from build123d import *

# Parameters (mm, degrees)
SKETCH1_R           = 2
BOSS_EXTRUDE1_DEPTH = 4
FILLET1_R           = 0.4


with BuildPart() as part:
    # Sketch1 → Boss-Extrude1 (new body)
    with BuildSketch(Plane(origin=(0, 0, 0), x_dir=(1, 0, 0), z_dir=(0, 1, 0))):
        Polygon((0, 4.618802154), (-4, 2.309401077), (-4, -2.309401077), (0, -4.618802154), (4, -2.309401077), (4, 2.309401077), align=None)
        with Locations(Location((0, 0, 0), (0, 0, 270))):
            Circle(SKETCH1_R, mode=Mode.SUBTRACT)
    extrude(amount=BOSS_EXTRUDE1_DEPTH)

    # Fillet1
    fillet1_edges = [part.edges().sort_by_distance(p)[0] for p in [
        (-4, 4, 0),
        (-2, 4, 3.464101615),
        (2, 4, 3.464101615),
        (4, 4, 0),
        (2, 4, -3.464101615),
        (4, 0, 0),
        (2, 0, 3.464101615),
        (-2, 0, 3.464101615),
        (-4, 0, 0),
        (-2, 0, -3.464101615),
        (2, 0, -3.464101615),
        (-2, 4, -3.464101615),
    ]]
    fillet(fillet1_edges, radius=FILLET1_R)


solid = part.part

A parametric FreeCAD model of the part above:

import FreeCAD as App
import Part
import Sketcher
from FreeCAD import Vector
Q = App.Units.Quantity


def edges_at(feature, points):
    """Names of the edges that pass closest to the given points."""
    edges = feature.Shape.Edges
    near = lambda p: min(range(len(edges)), key=lambda i: edges[i].distToShape(Part.Vertex(*p))[0])
    return sorted({f"Edge{near(p) + 1}" for p in points})


def add_polygon(sketch, points):
    """Adds a closed chain of lines whose ends are joined by coincident constraints."""
    first, n = sketch.GeometryCount, len(points)
    for a, b in zip(points, points[1:] + points[:1]):
        sketch.addGeometry(Part.LineSegment(App.Vector(*a, 0), App.Vector(*b, 0)), False)
    for i in range(n):
        sketch.addConstraint(Sketcher.Constraint("Coincident", first + i, 2, first + (i + 1) % n, 1))

doc = App.newDocument("Part")
params = doc.addObject("Spreadsheet::Sheet", "Params")
for row, (alias, value) in enumerate([
    ("sketch1_diameter", "4 mm"),
    ("pad1_length", "4 mm"),
    ("fillet_radius", "0.4 mm"),
], start=1):
    params.set(f"A{row}", alias)
    params.set(f"B{row}", "=" + value)
    params.setAlias(f"B{row}", alias)

body = doc.addObject("PartDesign::Body", "Body")

# Sketch on XZ plane
sketch1 = doc.addObject("Sketcher::SketchObject", "Sketch")
body.addObject(sketch1)
sketch1.AttachmentSupport = (doc.XZ_Plane, [""])
sketch1.MapMode = "FlatFace"
add_polygon(sketch1, [(0, -4.618802), (-4, -2.309401), (-4, 2.309401), (0, 4.618802), (4, 2.309401), (4, -2.309401)])  # lines 0-5
sketch1.addGeometry(Part.Circle(Vector(0, 0, 0), Vector(0, 0, 1), 2), False)  # 6
sketch1.addConstraint([
    Sketcher.Constraint("Vertical", 1),
    Sketcher.Constraint("Vertical", 4),
    Sketcher.Constraint("Coincident", 6, 3, -1, 1),
    Sketcher.Constraint("Symmetric", 0, 2, 3, 2, -1, 1),
    Sketcher.Constraint("Symmetric", 2, 2, 5, 2, -1, 1),
    Sketcher.Constraint("PointOnObject", 2, 2, -2),
    Sketcher.Constraint("Parallel", 2, 5),
    Sketcher.Constraint("Horizontal", 1, 2, 3, 2),
    Sketcher.Constraint("Diameter", 6, Q("4 mm")),
    Sketcher.Constraint("Angle", 0, Q("150 deg")),
    Sketcher.Constraint("DistanceX", 0, 2, -1, 1, Q("4 mm")),
    Sketcher.Constraint("DistanceY", 0, 2, -1, 1, Q("2.309401 mm")),
])
sketch1.setExpression("Constraints[14]", "Params.sketch1_diameter")
pad1 = doc.addObject("PartDesign::Pad", "Pad")
body.addObject(pad1)
pad1.Profile = sketch1
pad1.setExpression("Length", "Params.pad1_length")
pad1.Reversed = True
doc.recompute()

fillet = doc.addObject("PartDesign::Fillet", "Fillet")
body.addObject(fillet)
fillet.Base = (pad1, edges_at(pad1, [
    (-4, 4, 0),
    (-2, 4, 3.464),
    (2, 4, 3.464),
    (4, 4, 0),
    (2, 4, -3.464),
    (4, 0, 0),
    (2, 0, 3.464),
    (-2, 0, 3.464),
    (-4, 0, 0),
    (-2, 0, -3.464),
    (2, 0, -3.464),
    (-2, 4, -3.464),
]))
fillet.setExpression("Radius", "Params.fillet_radius")

doc.recompute()
